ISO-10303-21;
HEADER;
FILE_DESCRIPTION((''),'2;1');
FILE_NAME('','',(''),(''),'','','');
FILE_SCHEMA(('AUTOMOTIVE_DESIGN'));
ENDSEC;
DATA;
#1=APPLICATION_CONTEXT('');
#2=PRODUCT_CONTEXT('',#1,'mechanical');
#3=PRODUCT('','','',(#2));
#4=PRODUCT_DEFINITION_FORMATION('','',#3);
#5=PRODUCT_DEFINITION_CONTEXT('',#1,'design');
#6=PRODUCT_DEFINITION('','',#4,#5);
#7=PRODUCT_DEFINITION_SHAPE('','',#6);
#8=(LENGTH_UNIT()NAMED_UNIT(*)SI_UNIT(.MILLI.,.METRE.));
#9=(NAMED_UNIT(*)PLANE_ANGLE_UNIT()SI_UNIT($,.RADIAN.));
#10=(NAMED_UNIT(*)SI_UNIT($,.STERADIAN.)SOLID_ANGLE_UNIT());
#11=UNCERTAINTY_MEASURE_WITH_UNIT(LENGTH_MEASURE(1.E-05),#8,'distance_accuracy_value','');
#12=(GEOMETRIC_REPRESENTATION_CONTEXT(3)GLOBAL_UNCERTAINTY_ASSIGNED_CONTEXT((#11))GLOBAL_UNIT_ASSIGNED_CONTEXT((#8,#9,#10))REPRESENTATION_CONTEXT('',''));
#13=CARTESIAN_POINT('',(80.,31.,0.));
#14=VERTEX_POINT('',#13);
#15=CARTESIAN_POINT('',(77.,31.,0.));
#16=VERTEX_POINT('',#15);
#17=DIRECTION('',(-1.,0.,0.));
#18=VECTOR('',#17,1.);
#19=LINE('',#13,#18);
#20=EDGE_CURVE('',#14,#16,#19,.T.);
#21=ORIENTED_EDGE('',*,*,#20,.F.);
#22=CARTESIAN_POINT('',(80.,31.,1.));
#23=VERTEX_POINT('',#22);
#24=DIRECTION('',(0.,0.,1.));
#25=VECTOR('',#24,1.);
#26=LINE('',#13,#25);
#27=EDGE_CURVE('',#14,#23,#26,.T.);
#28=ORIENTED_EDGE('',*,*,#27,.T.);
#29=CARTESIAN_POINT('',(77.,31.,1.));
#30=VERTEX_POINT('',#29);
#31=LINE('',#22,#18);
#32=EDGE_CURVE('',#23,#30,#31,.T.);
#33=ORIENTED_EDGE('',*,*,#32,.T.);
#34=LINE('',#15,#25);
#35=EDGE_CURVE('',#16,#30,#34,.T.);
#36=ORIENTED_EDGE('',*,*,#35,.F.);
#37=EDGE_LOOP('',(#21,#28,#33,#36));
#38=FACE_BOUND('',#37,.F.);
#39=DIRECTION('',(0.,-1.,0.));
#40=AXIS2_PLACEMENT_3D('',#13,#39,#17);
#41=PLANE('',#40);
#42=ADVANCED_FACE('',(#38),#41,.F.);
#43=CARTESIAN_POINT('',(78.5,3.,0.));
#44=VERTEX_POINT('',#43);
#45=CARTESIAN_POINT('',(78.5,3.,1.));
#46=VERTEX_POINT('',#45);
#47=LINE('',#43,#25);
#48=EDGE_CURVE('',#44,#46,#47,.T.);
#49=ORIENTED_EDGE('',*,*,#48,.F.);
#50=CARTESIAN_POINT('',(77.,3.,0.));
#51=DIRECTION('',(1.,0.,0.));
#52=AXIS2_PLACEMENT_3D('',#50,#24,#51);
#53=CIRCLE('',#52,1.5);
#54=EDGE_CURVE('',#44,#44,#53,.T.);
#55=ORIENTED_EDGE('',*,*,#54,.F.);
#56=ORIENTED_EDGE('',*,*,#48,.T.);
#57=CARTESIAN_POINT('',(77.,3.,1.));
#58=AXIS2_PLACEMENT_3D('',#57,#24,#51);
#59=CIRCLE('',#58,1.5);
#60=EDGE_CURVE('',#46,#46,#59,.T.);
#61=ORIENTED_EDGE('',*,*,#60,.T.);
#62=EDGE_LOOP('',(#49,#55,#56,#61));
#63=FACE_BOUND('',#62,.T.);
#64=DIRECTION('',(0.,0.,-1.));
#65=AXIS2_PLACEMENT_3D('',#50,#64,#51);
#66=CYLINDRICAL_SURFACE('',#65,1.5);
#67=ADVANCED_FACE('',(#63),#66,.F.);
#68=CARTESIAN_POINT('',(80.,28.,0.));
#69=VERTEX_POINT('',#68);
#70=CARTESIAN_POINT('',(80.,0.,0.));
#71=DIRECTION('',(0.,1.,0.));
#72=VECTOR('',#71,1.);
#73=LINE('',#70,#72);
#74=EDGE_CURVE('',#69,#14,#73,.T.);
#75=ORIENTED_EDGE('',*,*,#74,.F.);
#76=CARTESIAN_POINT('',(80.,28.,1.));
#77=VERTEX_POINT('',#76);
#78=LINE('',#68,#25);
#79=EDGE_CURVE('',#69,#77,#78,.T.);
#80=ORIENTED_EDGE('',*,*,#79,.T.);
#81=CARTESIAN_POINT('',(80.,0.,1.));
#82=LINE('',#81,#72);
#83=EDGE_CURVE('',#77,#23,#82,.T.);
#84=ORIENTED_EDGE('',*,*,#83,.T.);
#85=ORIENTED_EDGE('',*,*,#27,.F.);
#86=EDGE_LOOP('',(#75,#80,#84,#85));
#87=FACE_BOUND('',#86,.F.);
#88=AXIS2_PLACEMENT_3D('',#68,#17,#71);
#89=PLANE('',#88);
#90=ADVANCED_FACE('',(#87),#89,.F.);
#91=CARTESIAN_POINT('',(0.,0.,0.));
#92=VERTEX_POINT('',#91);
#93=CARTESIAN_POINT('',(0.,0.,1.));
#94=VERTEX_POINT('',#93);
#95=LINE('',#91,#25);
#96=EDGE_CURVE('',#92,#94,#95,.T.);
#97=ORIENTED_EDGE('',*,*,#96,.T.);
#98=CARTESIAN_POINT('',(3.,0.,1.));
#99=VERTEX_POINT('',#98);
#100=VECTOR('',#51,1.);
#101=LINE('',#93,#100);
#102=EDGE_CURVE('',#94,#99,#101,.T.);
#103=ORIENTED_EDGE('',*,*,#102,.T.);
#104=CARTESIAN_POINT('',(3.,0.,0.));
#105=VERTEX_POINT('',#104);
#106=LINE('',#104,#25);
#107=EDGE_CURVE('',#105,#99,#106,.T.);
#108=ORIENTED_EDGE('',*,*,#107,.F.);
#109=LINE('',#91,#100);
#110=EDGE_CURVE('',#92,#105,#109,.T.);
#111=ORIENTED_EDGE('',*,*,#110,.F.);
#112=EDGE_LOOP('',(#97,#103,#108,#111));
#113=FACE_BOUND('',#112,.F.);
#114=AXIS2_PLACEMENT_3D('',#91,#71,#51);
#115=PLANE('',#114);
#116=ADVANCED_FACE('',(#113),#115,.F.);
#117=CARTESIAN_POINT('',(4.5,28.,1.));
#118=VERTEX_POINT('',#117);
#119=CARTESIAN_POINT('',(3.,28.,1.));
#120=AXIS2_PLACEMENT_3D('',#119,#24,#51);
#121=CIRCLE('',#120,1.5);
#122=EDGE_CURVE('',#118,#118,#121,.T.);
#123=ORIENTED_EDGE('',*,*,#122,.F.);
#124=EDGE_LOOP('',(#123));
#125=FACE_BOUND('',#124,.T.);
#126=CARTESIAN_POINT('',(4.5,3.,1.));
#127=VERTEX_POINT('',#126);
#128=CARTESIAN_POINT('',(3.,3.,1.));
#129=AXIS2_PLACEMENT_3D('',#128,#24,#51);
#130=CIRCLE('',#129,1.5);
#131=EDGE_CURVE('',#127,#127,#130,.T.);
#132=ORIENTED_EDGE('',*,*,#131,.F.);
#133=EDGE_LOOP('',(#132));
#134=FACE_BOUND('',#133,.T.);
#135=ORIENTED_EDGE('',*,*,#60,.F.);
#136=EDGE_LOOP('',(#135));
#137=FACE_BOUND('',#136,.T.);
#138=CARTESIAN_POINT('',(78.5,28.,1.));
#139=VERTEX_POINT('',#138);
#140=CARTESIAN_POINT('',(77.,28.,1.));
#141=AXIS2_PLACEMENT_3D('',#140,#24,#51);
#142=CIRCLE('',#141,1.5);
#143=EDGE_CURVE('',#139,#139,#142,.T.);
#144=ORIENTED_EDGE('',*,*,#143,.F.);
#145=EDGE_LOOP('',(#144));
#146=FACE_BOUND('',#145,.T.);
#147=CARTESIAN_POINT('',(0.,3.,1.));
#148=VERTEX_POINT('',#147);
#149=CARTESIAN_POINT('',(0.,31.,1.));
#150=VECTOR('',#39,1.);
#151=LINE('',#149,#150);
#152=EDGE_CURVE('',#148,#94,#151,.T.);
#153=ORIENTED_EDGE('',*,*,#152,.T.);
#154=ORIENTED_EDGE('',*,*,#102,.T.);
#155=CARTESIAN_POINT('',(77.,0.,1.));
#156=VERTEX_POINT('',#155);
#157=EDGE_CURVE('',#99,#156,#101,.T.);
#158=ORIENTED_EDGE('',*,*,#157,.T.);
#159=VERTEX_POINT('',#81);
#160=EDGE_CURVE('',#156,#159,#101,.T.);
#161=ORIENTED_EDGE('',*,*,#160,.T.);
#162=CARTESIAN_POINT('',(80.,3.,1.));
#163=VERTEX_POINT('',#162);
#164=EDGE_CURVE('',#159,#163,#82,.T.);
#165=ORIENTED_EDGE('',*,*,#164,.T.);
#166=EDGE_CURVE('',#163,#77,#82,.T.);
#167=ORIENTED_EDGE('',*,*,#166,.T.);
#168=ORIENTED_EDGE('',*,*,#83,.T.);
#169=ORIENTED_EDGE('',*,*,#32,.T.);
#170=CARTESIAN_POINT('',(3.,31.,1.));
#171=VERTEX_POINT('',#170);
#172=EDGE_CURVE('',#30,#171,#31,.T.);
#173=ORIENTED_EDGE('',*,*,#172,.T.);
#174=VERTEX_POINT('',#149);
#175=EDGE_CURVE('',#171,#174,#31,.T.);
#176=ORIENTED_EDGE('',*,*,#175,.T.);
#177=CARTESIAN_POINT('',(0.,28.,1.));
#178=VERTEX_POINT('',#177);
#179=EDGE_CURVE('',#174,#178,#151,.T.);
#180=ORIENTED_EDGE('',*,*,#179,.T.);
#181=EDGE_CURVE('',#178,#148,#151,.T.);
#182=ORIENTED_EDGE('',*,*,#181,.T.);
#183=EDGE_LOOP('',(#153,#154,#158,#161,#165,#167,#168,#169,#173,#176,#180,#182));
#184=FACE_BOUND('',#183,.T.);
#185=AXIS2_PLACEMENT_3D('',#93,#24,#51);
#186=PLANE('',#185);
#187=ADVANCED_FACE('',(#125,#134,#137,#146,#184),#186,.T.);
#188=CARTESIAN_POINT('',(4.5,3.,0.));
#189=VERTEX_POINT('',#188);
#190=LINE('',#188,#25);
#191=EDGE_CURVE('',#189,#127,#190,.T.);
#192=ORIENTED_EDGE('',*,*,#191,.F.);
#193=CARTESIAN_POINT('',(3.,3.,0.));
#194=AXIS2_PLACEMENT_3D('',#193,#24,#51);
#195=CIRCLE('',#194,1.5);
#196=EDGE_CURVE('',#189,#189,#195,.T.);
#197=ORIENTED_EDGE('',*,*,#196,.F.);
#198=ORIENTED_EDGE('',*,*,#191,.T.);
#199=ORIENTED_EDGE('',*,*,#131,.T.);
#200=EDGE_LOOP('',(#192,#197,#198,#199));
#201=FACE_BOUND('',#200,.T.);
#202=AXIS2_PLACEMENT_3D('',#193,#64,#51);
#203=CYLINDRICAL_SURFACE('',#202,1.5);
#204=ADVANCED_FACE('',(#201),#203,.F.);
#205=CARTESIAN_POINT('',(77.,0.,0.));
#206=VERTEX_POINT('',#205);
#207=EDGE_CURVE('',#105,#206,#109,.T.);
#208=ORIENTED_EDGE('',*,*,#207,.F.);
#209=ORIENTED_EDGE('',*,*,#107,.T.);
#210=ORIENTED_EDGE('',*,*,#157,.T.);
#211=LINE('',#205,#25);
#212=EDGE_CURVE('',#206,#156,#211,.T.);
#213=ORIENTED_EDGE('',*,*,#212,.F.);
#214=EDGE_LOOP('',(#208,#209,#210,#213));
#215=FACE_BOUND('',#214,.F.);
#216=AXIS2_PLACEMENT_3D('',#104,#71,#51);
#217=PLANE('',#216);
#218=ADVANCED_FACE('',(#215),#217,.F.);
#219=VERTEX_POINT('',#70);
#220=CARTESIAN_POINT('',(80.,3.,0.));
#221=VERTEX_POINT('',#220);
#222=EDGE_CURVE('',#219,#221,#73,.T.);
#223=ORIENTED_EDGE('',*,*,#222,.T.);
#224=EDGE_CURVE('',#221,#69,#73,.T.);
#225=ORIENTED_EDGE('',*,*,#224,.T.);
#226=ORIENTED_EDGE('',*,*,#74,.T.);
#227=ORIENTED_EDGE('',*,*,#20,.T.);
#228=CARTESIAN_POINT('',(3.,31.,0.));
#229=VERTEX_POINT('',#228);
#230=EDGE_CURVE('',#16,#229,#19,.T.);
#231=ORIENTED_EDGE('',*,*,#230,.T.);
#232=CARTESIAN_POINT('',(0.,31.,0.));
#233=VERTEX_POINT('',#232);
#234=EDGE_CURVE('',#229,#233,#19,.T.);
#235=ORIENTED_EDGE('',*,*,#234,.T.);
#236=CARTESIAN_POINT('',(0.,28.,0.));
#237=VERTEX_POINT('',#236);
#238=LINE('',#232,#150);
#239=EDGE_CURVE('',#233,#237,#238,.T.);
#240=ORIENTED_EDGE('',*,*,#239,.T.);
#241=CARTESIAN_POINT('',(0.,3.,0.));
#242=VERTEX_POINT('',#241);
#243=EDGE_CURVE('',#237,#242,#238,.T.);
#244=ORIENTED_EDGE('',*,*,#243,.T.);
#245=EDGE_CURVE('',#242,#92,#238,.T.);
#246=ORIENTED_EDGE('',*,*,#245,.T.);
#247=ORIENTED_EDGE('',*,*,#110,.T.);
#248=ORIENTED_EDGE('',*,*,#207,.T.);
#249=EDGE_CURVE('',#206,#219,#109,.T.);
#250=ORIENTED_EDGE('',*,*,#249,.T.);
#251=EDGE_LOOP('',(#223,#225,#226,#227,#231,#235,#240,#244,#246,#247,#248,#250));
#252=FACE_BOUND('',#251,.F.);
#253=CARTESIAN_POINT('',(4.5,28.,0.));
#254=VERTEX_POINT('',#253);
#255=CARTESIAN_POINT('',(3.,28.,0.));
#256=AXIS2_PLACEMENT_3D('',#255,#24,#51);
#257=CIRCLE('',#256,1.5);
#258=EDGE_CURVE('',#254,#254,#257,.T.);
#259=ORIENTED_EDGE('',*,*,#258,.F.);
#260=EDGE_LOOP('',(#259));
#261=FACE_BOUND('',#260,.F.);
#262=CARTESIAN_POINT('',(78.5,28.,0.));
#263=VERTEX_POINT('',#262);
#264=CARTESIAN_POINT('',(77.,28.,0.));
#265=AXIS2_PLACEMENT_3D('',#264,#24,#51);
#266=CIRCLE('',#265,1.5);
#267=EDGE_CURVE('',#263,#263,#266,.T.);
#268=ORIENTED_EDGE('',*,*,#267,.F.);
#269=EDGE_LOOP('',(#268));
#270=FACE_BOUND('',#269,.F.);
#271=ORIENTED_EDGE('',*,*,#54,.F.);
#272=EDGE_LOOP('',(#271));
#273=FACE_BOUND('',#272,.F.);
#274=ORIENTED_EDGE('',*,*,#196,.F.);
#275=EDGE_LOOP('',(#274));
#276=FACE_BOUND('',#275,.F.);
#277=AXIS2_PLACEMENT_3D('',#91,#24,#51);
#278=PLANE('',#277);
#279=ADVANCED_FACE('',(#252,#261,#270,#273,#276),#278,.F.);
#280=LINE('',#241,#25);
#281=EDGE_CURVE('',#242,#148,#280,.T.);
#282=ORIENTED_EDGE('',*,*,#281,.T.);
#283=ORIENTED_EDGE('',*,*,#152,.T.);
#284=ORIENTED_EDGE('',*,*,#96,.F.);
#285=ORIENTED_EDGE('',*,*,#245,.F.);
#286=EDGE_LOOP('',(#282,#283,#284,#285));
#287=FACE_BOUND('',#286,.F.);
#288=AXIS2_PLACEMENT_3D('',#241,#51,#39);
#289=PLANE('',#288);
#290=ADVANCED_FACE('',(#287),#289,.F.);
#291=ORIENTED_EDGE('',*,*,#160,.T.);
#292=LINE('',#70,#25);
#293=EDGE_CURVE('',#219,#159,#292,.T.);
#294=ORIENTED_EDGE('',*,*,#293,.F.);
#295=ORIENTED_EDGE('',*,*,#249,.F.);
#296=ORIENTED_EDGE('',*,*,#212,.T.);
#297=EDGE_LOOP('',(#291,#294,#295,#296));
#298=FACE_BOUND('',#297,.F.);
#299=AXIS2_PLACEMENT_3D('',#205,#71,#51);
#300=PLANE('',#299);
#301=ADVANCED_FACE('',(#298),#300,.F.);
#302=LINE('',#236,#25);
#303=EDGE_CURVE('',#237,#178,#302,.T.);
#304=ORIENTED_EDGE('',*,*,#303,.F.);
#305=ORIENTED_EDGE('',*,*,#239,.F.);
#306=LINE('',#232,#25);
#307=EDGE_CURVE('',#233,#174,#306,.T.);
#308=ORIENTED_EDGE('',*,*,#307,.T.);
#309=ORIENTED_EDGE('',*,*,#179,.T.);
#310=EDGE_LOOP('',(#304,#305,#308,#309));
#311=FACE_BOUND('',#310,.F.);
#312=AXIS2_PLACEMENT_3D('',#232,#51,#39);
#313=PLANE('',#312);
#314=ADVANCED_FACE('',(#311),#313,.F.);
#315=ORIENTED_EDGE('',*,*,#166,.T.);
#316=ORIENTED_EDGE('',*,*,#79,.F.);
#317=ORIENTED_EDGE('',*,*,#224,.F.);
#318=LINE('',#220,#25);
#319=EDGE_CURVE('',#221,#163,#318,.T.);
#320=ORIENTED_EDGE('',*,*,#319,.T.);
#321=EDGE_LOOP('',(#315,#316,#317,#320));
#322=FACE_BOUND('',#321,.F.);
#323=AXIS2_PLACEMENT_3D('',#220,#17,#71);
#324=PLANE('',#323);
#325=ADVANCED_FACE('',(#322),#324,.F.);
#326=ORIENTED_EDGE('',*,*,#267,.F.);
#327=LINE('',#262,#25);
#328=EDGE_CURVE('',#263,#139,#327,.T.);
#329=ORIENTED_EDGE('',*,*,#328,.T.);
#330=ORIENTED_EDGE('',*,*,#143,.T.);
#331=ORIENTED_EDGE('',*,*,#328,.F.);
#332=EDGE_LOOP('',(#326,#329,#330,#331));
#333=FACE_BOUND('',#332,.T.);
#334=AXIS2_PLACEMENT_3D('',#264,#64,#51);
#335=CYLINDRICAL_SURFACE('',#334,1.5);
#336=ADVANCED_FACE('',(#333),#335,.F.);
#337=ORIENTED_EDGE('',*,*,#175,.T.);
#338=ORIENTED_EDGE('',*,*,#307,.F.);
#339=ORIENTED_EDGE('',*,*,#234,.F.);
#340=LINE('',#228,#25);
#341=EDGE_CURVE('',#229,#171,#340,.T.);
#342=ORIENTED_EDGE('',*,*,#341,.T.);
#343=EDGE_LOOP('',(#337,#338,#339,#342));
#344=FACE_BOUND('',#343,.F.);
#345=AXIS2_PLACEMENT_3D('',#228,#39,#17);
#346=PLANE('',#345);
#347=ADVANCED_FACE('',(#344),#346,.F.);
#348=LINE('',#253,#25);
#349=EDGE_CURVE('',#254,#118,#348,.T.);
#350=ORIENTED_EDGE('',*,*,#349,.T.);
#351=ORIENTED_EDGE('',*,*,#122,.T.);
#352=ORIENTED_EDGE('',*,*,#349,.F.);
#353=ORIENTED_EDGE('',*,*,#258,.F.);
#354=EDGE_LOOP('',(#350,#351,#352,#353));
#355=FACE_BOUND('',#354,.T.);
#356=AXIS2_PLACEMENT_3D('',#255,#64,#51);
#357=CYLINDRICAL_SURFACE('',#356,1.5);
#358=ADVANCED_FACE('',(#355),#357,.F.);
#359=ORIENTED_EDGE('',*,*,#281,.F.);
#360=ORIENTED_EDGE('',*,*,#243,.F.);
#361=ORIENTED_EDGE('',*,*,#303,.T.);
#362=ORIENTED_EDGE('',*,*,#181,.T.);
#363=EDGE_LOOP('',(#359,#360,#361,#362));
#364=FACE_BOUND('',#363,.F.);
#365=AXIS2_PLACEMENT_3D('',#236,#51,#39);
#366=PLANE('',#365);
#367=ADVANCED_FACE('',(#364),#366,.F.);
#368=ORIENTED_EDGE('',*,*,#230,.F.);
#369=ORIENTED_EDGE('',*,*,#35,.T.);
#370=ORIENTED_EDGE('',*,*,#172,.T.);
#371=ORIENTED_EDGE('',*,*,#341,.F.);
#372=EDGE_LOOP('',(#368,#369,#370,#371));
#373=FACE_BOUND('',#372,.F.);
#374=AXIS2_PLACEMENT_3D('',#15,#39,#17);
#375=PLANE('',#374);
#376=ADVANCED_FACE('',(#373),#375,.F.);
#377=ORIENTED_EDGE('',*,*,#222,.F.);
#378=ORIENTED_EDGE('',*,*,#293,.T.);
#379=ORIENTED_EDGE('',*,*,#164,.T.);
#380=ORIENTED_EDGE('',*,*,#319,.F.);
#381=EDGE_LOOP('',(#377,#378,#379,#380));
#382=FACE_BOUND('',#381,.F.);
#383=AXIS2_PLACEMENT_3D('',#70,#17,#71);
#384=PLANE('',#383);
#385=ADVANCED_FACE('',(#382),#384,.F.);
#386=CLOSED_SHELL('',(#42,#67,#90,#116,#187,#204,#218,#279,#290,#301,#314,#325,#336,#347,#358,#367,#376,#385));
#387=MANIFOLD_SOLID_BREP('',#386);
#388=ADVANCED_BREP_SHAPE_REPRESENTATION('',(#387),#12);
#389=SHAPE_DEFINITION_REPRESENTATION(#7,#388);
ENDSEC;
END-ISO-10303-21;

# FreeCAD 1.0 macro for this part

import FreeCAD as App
import Part
import Sketcher
from FreeCAD import Vector


def add_polygon(sketch, points):
    """Adds a closed chain of lines whose ends are joined by coincident constraints."""
    first, n = sketch.GeometryCount, len(points)
    for a, b in zip(points, points[1:] + points[:1]):
        sketch.addGeometry(Part.LineSegment(App.Vector(*a, 0), App.Vector(*b, 0)), False)
    for i in range(n):
        sketch.addConstraint(Sketcher.Constraint("Coincident", first + i, 2, first + (i + 1) % n, 1))

doc = App.newDocument("Part")
body = doc.addObject("PartDesign::Body", "Body")

# Sketch on XY plane
sketch1 = doc.addObject("Sketcher::SketchObject", "Sketch")
body.addObject(sketch1)
sketch1.AttachmentSupport = (doc.XY_Plane, [""])
sketch1.MapMode = "FlatFace"
add_polygon(sketch1, [(0, 31), (0, 0), (80, 0), (80, 31)])  # lines 0-3
sketch1.addGeometry(Part.Circle(Vector(3, 3, 0), Vector(0, 0, 1), 1.5), False)  # 4
sketch1.addGeometry(Part.Circle(Vector(77, 3, 0), Vector(0, 0, 1), 1.5), False)  # 5
sketch1.addGeometry(Part.Circle(Vector(3, 28, 0), Vector(0, 0, 1), 1.5), False)  # 6
sketch1.addGeometry(Part.Circle(Vector(77, 28, 0), Vector(0, 0, 1), 1.5), False)  # 7
sketch1.addConstraint([
    Sketcher.Constraint("Vertical", 0),
    Sketcher.Constraint("Horizontal", 1),
    Sketcher.Constraint("Vertical", 2),
    Sketcher.Constraint("Horizontal", 3),
    Sketcher.Constraint("Coincident", 0, 2, -1, 1),
    Sketcher.Constraint("Equal", 4, 5),
    Sketcher.Constraint("Equal", 5, 6),
    Sketcher.Constraint("Equal", 6, 7),
    Sketcher.Constraint("Horizontal", 4, 3, 5, 3),
    Sketcher.Constraint("Horizontal", 6, 3, 7, 3),
    Sketcher.Constraint("Vertical", 4, 3, 6, 3),
    Sketcher.Constraint("Vertical", 5, 3, 7, 3),
    Sketcher.Constraint("Diameter", 4, 3.0),
    Sketcher.Constraint("DistanceX", 1, 1, 1, 2, 80.0),
    Sketcher.Constraint("DistanceY", 0, 2, 0, 1, 31.0),
    Sketcher.Constraint("DistanceX", -1, 1, 4, 3, 3.0),
    Sketcher.Constraint("DistanceY", -1, 1, 4, 3, 3.0),
    Sketcher.Constraint("DistanceX", 5, 3, 1, 2, 3.0),
    Sketcher.Constraint("DistanceY", 7, 3, 2, 2, 3.0),
])
pad1 = doc.addObject("PartDesign::Pad", "Pad")
body.addObject(pad1)
pad1.Profile = sketch1
pad1.Length = 1

doc.recompute()
